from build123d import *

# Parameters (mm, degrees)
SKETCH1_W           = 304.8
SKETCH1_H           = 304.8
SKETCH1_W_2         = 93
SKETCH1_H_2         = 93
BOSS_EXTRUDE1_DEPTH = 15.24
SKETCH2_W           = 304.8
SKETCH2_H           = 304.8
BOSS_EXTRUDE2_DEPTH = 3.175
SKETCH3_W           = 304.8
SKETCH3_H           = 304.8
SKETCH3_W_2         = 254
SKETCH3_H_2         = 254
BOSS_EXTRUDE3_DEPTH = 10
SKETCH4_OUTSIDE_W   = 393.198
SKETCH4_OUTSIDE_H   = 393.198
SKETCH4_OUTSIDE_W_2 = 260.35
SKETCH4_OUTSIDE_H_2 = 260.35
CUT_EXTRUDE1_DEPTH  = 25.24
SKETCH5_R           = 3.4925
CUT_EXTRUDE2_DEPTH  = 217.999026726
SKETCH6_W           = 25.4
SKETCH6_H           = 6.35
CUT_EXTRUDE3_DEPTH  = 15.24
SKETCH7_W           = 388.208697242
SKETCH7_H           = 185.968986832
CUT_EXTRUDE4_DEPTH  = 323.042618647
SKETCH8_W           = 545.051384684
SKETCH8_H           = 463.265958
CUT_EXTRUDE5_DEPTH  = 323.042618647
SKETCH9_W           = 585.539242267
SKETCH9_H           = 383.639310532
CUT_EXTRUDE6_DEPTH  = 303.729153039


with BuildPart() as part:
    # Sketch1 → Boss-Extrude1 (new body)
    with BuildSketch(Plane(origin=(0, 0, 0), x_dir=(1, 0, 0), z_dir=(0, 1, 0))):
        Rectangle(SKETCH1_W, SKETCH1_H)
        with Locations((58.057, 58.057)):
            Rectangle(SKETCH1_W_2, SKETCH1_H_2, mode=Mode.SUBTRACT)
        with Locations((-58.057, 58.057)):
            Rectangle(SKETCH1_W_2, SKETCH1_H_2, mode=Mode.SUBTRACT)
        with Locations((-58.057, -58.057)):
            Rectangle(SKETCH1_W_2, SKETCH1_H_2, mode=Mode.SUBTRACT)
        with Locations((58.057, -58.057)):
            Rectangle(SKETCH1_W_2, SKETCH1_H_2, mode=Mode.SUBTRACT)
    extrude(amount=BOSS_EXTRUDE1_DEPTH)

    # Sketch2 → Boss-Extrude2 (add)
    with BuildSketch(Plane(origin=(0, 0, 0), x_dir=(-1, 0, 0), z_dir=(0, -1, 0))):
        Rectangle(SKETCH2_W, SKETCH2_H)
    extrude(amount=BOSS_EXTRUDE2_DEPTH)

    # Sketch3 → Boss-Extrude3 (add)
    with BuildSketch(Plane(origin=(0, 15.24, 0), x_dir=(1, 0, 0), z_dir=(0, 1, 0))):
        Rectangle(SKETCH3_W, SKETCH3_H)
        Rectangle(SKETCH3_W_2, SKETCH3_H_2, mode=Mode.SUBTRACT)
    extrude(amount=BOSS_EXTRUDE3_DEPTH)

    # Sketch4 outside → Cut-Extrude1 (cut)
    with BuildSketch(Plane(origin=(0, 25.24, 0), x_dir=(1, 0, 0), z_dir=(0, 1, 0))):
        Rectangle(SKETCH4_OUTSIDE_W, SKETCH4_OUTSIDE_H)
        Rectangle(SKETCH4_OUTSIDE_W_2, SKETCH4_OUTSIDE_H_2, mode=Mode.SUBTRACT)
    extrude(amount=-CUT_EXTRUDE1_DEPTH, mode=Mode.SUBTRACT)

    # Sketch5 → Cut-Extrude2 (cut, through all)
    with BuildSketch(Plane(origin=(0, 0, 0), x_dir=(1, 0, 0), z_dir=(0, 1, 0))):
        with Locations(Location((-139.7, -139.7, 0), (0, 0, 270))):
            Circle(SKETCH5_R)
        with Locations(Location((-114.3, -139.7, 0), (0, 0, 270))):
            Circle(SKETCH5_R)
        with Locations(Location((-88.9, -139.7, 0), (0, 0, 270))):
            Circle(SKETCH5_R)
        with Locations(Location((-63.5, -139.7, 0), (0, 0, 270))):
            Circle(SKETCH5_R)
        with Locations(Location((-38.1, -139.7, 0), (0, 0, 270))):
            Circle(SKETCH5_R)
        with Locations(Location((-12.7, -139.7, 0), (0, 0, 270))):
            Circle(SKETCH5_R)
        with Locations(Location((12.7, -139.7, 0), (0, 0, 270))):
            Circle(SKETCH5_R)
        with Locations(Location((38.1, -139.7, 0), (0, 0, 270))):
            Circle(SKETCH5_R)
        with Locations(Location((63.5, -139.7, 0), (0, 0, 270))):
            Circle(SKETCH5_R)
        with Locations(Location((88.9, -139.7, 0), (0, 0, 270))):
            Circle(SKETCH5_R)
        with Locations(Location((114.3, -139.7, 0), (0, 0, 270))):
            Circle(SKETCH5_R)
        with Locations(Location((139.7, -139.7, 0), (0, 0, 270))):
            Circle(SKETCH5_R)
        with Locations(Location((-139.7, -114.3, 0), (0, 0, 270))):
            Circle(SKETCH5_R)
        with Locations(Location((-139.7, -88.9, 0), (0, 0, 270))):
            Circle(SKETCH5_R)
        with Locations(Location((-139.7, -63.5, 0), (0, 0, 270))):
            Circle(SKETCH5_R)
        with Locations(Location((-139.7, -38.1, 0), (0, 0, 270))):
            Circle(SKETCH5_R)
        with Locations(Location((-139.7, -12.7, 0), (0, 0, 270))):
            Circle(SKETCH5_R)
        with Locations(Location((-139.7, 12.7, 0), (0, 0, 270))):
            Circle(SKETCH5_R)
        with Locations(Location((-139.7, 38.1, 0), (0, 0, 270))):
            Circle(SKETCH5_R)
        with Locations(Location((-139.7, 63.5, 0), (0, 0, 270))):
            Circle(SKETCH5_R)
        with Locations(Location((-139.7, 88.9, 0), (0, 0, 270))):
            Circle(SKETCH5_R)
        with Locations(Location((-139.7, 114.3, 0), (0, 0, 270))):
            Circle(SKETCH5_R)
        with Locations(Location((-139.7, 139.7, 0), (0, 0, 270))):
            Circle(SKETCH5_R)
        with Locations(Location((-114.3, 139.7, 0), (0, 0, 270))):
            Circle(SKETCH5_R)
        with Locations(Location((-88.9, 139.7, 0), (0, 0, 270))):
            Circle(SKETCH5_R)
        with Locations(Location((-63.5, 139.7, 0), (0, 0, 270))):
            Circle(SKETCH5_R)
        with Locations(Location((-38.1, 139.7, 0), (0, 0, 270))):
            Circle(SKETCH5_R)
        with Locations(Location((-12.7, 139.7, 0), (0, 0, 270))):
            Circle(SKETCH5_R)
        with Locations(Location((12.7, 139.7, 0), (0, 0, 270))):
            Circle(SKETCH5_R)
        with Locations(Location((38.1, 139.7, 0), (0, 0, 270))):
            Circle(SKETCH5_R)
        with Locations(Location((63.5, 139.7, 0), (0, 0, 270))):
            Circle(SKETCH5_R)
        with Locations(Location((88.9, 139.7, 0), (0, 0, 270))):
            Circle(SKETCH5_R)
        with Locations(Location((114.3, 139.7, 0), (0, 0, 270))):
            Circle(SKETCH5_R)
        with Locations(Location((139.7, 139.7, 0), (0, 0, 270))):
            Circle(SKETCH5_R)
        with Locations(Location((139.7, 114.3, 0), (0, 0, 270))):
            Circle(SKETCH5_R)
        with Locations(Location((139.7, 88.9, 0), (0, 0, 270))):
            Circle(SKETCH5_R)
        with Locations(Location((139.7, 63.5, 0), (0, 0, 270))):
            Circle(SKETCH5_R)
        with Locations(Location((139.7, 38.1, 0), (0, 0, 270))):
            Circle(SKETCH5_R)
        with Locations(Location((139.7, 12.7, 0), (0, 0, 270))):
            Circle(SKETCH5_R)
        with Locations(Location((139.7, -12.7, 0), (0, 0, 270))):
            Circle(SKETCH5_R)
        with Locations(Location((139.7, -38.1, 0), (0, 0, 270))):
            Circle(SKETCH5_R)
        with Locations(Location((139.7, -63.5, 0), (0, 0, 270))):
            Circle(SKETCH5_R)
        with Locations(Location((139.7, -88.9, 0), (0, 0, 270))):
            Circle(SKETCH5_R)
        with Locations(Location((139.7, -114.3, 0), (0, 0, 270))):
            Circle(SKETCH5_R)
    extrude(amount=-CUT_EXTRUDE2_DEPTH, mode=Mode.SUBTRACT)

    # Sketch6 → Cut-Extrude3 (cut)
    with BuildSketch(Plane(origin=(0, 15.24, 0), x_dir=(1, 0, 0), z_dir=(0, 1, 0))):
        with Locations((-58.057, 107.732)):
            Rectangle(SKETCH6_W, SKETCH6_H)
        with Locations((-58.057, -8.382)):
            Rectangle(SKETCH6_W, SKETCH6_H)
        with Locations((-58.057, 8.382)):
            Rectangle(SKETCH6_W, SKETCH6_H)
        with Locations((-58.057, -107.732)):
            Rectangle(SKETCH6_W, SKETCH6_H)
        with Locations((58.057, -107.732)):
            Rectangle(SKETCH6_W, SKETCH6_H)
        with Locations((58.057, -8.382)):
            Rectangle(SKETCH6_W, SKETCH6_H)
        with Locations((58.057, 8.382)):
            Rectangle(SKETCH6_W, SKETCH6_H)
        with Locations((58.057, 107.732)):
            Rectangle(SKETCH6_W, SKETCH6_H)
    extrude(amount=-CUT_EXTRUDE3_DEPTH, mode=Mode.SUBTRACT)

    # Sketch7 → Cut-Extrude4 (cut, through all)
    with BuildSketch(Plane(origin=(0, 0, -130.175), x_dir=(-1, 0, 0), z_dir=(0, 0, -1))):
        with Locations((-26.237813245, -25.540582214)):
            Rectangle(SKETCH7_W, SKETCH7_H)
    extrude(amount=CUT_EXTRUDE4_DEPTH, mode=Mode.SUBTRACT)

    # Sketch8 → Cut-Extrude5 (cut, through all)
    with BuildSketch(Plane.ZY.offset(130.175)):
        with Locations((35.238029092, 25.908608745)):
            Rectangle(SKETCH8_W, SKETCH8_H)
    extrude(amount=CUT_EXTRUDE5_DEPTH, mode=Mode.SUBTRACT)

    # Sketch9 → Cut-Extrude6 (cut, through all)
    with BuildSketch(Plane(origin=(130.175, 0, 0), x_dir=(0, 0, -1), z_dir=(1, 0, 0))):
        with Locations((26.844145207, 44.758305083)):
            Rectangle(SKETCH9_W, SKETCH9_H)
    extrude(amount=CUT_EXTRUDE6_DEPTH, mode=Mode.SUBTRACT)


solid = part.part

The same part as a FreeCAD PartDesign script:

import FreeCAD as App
import Part
import Sketcher

V = App.Vector
Q = App.Units.Quantity


def add_polygon(sketch, points):
    """Adds a closed chain of lines whose ends are joined by coincident constraints."""
    first, n = sketch.GeometryCount, len(points)
    for a, b in zip(points, points[1:] + points[:1]):
        sketch.addGeometry(Part.LineSegment(App.Vector(*a, 0), App.Vector(*b, 0)), False)
    for i in range(n):
        sketch.addConstraint(Sketcher.Constraint("Coincident", first + i, 2, first + (i + 1) % n, 1))

doc = App.newDocument("Part")
body = doc.addObject("PartDesign::Body", "Body")

# Sketch on XZ plane
sketch1 = body.newObject("Sketcher::SketchObject", "Sketch")
sketch1.AttachmentSupport = (doc.getObject("XZ_Plane"), [""])
sketch1.MapMode = "FlatFace"
add_polygon(sketch1, [(-152, -152), (-152, 152), (152, 152), (152, -152)])  # lines 0-3
add_polygon(sketch1, [(-12, 105), (-105, 105), (-105, 12), (-12, 12)])  # lines 4-7
add_polygon(sketch1, [(105, 105), (12, 105), (12, 12), (105, 12)])  # lines 8-11
add_polygon(sketch1, [(-12, -12), (-105, -12), (-105, -105), (-12, -105)])  # lines 12-15
add_polygon(sketch1, [(105, -12), (12, -12), (12, -105), (105, -105)])  # lines 16-19
sketch1.addConstraint(Sketcher.Constraint("Vertical", 0))
sketch1.addConstraint(Sketcher.Constraint("Horizontal", 1))
sketch1.addConstraint(Sketcher.Constraint("Vertical", 2))
sketch1.addConstraint(Sketcher.Constraint("Horizontal", 3))
sketch1.addConstraint(Sketcher.Constraint("Horizontal", 4))
sketch1.addConstraint(Sketcher.Constraint("Vertical", 5))
sketch1.addConstraint(Sketcher.Constraint("Horizontal", 6))
sketch1.addConstraint(Sketcher.Constraint("Vertical", 7))
sketch1.addConstraint(Sketcher.Constraint("Horizontal", 8))
sketch1.addConstraint(Sketcher.Constraint("Vertical", 9))
sketch1.addConstraint(Sketcher.Constraint("Horizontal", 10))
sketch1.addConstraint(Sketcher.Constraint("Vertical", 11))
sketch1.addConstraint(Sketcher.Constraint("Horizontal", 12))
sketch1.addConstraint(Sketcher.Constraint("Vertical", 13))
sketch1.addConstraint(Sketcher.Constraint("Horizontal", 14))
sketch1.addConstraint(Sketcher.Constraint("Vertical", 15))
sketch1.addConstraint(Sketcher.Constraint("Horizontal", 16))
sketch1.addConstraint(Sketcher.Constraint("Vertical", 17))
sketch1.addConstraint(Sketcher.Constraint("Horizontal", 18))
sketch1.addConstraint(Sketcher.Constraint("Vertical", 19))
sketch1.addConstraint(Sketcher.Constraint("Symmetric", 0, 2, 2, 2, -1, 1))
sketch1.addConstraint(Sketcher.Constraint("Symmetric", 10, 2, 12, 2, -1, 1))
sketch1.addConstraint(Sketcher.Constraint("Symmetric", 8, 2, 14, 2, -1, 1))
sketch1.addConstraint(Sketcher.Constraint("Symmetric", 6, 2, 16, 2, -1, 1))
sketch1.addConstraint(Sketcher.Constraint("Symmetric", 4, 2, 18, 2, -1, 1))
sketch1.addConstraint(Sketcher.Constraint("Symmetric", 7, 2, 8, 2, -2))
sketch1.addConstraint(Sketcher.Constraint("Symmetric", 5, 2, 10, 2, -2))
sketch1.addConstraint(Sketcher.Constraint("Equal", 3, 0))
sketch1.addConstraint(Sketcher.Constraint("Equal", 18, 5))
sketch1.addConstraint(Sketcher.Constraint("DistanceX", 1, 1, 1, 2, Q("12 in")))
sketch1.addConstraint(Sketcher.Constraint("DistanceX", 7, 2, 8, 2, Q("0.91 in")))
sketch1.addConstraint(Sketcher.Constraint("DistanceY", 12, 2, 5, 2, Q("0.91 in")))
sketch1.addConstraint(Sketcher.Constraint("DistanceX", 4, 2, 4, 1, 93.0))
pad1 = body.newObject("PartDesign::Pad", "Pad")
pad1.Profile = sketch1
pad1.Length = Q("0.6 in")
pad1.Reversed = True

# Sketch on XZ plane
sketch2 = body.newObject("Sketcher::SketchObject", "Sketch001")
sketch2.AttachmentSupport = (doc.getObject("XZ_Plane"), [""])
sketch2.MapMode = "FlatFace"
add_polygon(sketch2, [(152, -152), (152, 152), (-152, 152), (-152, -152)])  # lines 0-3
sketch2.addConstraint(Sketcher.Constraint("Vertical", 0))
sketch2.addConstraint(Sketcher.Constraint("Horizontal", 1))
sketch2.addConstraint(Sketcher.Constraint("Vertical", 2))
sketch2.addConstraint(Sketcher.Constraint("Horizontal", 3))
sketch2.addConstraint(Sketcher.Constraint("Symmetric", 0, 2, 2, 2, -1, 1))
sketch2.addConstraint(Sketcher.Constraint("Equal", 3, 0))
sketch2.addConstraint(Sketcher.Constraint("DistanceX", 1, 2, 1, 1, Q("12 in")))
pad2 = body.newObject("PartDesign::Pad", "Pad001")
pad2.Profile = sketch2
pad2.Length = Q("0.125 in")

# Sketch on XZ plane
sketch3 = body.newObject("Sketcher::SketchObject", "Sketch002")
sketch3.AttachmentSupport = (doc.getObject("XZ_Plane"), [""])
sketch3.MapMode = "FlatFace"
sketch3.AttachmentOffset = App.Placement(V(0, 0, -0.6 * 25.4), App.Rotation())
add_polygon(sketch3, [(-152, -152), (-152, 152), (152, 152), (152, -152)])  # lines 0-3
add_polygon(sketch3, [(127, 127), (-127, 127), (-127, -127), (127, -127)])  # lines 4-7
sketch3.addConstraint(Sketcher.Constraint("Vertical", 0))
sketch3.addConstraint(Sketcher.Constraint("Horizontal", 1))
sketch3.addConstraint(Sketcher.Constraint("Vertical", 2))
sketch3.addConstraint(Sketcher.Constraint("Horizontal", 3))
sketch3.addConstraint(Sketcher.Constraint("Horizontal", 4))
sketch3.addConstraint(Sketcher.Constraint("Vertical", 5))
sketch3.addConstraint(Sketcher.Constraint("Horizontal", 6))
sketch3.addConstraint(Sketcher.Constraint("Vertical", 7))
sketch3.addConstraint(Sketcher.Constraint("Symmetric", 0, 2, 2, 2, -1, 1))
sketch3.addConstraint(Sketcher.Constraint("Symmetric", 4, 2, 6, 2, -1, 1))
sketch3.addConstraint(Sketcher.Constraint("Equal", 3, 0))
sketch3.addConstraint(Sketcher.Constraint("Equal", 6, 5))
sketch3.addConstraint(Sketcher.Constraint("DistanceX", 1, 1, 1, 2, Q("12 in")))
sketch3.addConstraint(Sketcher.Constraint("DistanceX", 4, 2, 4, 1, Q("10 in")))
pad3 = body.newObject("PartDesign::Pad", "Pad002")
pad3.Profile = sketch3
pad3.Length = 10
pad3.Reversed = True

# Sketch on XZ plane
sketch4 = body.newObject("Sketcher::SketchObject", "Sketch003")
sketch4.AttachmentSupport = (doc.getObject("XZ_Plane"), [""])
sketch4.MapMode = "FlatFace"
sketch4.AttachmentOffset = App.Placement(V(0, 0, -25.24), App.Rotation())
add_polygon(sketch4, [(-197, -197), (-197, 197), (197, 197), (197, -197)])  # lines 0-3
add_polygon(sketch4, [(130, 130), (-130, 130), (-130, -130), (130, -130)])  # lines 4-7
sketch4.addConstraint(Sketcher.Constraint("Vertical", 0))
sketch4.addConstraint(Sketcher.Constraint("Horizontal", 1))
sketch4.addConstraint(Sketcher.Constraint("Vertical", 2))
sketch4.addConstraint(Sketcher.Constraint("Horizontal", 3))
sketch4.addConstraint(Sketcher.Constraint("Horizontal", 4))
sketch4.addConstraint(Sketcher.Constraint("Vertical", 5))
sketch4.addConstraint(Sketcher.Constraint("Horizontal", 6))
sketch4.addConstraint(Sketcher.Constraint("Vertical", 7))
sketch4.addConstraint(Sketcher.Constraint("Symmetric", 0, 2, 2, 2, -1, 1))
sketch4.addConstraint(Sketcher.Constraint("Symmetric", 4, 2, 6, 2, -1, 1))
sketch4.addConstraint(Sketcher.Constraint("Equal", 3, 0))
sketch4.addConstraint(Sketcher.Constraint("Equal", 6, 5))
sketch4.addConstraint(Sketcher.Constraint("DistanceX", 4, 2, 4, 1, Q("10.25 in")))
sketch4.addConstraint(Sketcher.Constraint("DistanceX", 1, 1, 1, 2, 393.198))
pocket1 = body.newObject("PartDesign::Pocket", "Pocket")
pocket1.Profile = sketch4
pocket1.Length = 25.24
pocket1.Reversed = True

# Sketch on XZ plane
sketch5 = body.newObject("Sketcher::SketchObject", "Sketch004")
sketch5.AttachmentSupport = (doc.getObject("XZ_Plane"), [""])
sketch5.MapMode = "FlatFace"
sketch5.addGeometry(Part.Circle(V(-139.7, 139.7, 0), V(0, 0, 1), 3.5), False)
sketch5.addGeometry(Part.Circle(V(-114.3, 139.7, 0), V(0, 0, 1), 3.5), False)
sketch5.addGeometry(Part.Circle(V(-88.9, 139.7, 0), V(0, 0, 1), 3.5), False)
sketch5.addGeometry(Part.Circle(V(-63.5, 139.7, 0), V(0, 0, 1), 3.5), False)
sketch5.addGeometry(Part.Circle(V(-38.1, 139.7, 0), V(0, 0, 1), 3.5), False)
sketch5.addGeometry(Part.Circle(V(-12.7, 139.7, 0), V(0, 0, 1), 3.5), False)
sketch5.addGeometry(Part.Circle(V(12.7, 139.7, 0), V(0, 0, 1), 3.5), False)
sketch5.addGeometry(Part.Circle(V(38.1, 139.7, 0), V(0, 0, 1), 3.5), False)
sketch5.addGeometry(Part.Circle(V(63.5, 139.7, 0), V(0, 0, 1), 3.5), False)
sketch5.addGeometry(Part.Circle(V(88.9, 139.7, 0), V(0, 0, 1), 3.5), False)
sketch5.addGeometry(Part.Circle(V(114.3, 139.7, 0), V(0, 0, 1), 3.5), False)
sketch5.addGeometry(Part.Circle(V(139.7, 139.7, 0), V(0, 0, 1), 3.5), False)
sketch5.addGeometry(Part.Circle(V(-139.7, 114.3, 0), V(0, 0, 1), 3.5), False)
sketch5.addGeometry(Part.Circle(V(-139.7, 88.9, 0), V(0, 0, 1), 3.5), False)
sketch5.addGeometry(Part.Circle(V(-139.7, 63.5, 0), V(0, 0, 1), 3.5), False)
sketch5.addGeometry(Part.Circle(V(-139.7, 38.1, 0), V(0, 0, 1), 3.5), False)
sketch5.addGeometry(Part.Circle(V(-139.7, 12.7, 0), V(0, 0, 1), 3.5), False)
sketch5.addGeometry(Part.Circle(V(-139.7, -12.7, 0), V(0, 0, 1), 3.5), False)
sketch5.addGeometry(Part.Circle(V(-139.7, -38.1, 0), V(0, 0, 1), 3.5), False)
sketch5.addGeometry(Part.Circle(V(-139.7, -63.5, 0), V(0, 0, 1), 3.5), False)
sketch5.addGeometry(Part.Circle(V(-139.7, -88.9, 0), V(0, 0, 1), 3.5), False)
sketch5.addGeometry(Part.Circle(V(-139.7, -114.3, 0), V(0, 0, 1), 3.5), False)
sketch5.addGeometry(Part.Circle(V(-139.7, -139.7, 0), V(0, 0, 1), 3.5), False)
sketch5.addGeometry(Part.Circle(V(-114.3, -139.7, 0), V(0, 0, 1), 3.5), False)
sketch5.addGeometry(Part.Circle(V(-88.9, -139.7, 0), V(0, 0, 1), 3.5), False)
sketch5.addGeometry(Part.Circle(V(-63.5, -139.7, 0), V(0, 0, 1), 3.5), False)
sketch5.addGeometry(Part.Circle(V(-38.1, -139.7, 0), V(0, 0, 1), 3.5), False)
sketch5.addGeometry(Part.Circle(V(-12.7, -139.7, 0), V(0, 0, 1), 3.5), False)
sketch5.addGeometry(Part.Circle(V(12.7, -139.7, 0), V(0, 0, 1), 3.5), False)
sketch5.addGeometry(Part.Circle(V(38.1, -139.7, 0), V(0, 0, 1), 3.5), False)
sketch5.addGeometry(Part.Circle(V(63.5, -139.7, 0), V(0, 0, 1), 3.5), False)
sketch5.addGeometry(Part.Circle(V(88.9, -139.7, 0), V(0, 0, 1), 3.5), False)
sketch5.addGeometry(Part.Circle(V(114.3, -139.7, 0), V(0, 0, 1), 3.5), False)
sketch5.addGeometry(Part.Circle(V(139.7, -139.7, 0), V(0, 0, 1), 3.5), False)
sketch5.addGeometry(Part.Circle(V(139.7, -114.3, 0), V(0, 0, 1), 3.5), False)
sketch5.addGeometry(Part.Circle(V(139.7, -88.9, 0), V(0, 0, 1), 3.5), False)
sketch5.addGeometry(Part.Circle(V(139.7, -63.5, 0), V(0, 0, 1), 3.5), False)
sketch5.addGeometry(Part.Circle(V(139.7, -38.1, 0), V(0, 0, 1), 3.5), False)
sketch5.addGeometry(Part.Circle(V(139.7, -12.7, 0), V(0, 0, 1), 3.5), False)
sketch5.addGeometry(Part.Circle(V(139.7, 12.7, 0), V(0, 0, 1), 3.5), False)
sketch5.addGeometry(Part.Circle(V(139.7, 38.1, 0), V(0, 0, 1), 3.5), False)
sketch5.addGeometry(Part.Circle(V(139.7, 63.5, 0), V(0, 0, 1), 3.5), False)
sketch5.addGeometry(Part.Circle(V(139.7, 88.9, 0), V(0, 0, 1), 3.5), False)
sketch5.addGeometry(Part.Circle(V(139.7, 114.3, 0), V(0, 0, 1), 3.5), False)
sketch5.addConstraint(Sketcher.Constraint("Equal", 0, 1))
sketch5.addConstraint(Sketcher.Constraint("Equal", 1, 2))
sketch5.addConstraint(Sketcher.Constraint("Equal", 2, 3))
sketch5.addConstraint(Sketcher.Constraint("Equal", 3, 4))
sketch5.addConstraint(Sketcher.Constraint("Equal", 4, 5))
sketch5.addConstraint(Sketcher.Constraint("Equal", 5, 6))
sketch5.addConstraint(Sketcher.Constraint("Equal", 6, 7))
sketch5.addConstraint(Sketcher.Constraint("Equal", 7, 8))
sketch5.addConstraint(Sketcher.Constraint("Equal", 8, 9))
sketch5.addConstraint(Sketcher.Constraint("Equal", 9, 10))
sketch5.addConstraint(Sketcher.Constraint("Equal", 10, 11))
sketch5.addConstraint(Sketcher.Constraint("Equal", 11, 12))
sketch5.addConstraint(Sketcher.Constraint("Equal", 12, 13))
sketch5.addConstraint(Sketcher.Constraint("Equal", 13, 14))
sketch5.addConstraint(Sketcher.Constraint("Equal", 14, 15))
sketch5.addConstraint(Sketcher.Constraint("Equal", 15, 16))
sketch5.addConstraint(Sketcher.Constraint("Equal", 16, 17))
sketch5.addConstraint(Sketcher.Constraint("Equal", 17, 18))
sketch5.addConstraint(Sketcher.Constraint("Equal", 18, 19))
sketch5.addConstraint(Sketcher.Constraint("Equal", 19, 20))
sketch5.addConstraint(Sketcher.Constraint("Equal", 20, 21))
sketch5.addConstraint(Sketcher.Constraint("Equal", 21, 22))
sketch5.addConstraint(Sketcher.Constraint("Equal", 22, 23))
sketch5.addConstraint(Sketcher.Constraint("Equal", 23, 24))
sketch5.addConstraint(Sketcher.Constraint("Equal", 24, 25))
sketch5.addConstraint(Sketcher.Constraint("Equal", 25, 26))
sketch5.addConstraint(Sketcher.Constraint("Equal", 26, 27))
sketch5.addConstraint(Sketcher.Constraint("Equal", 27, 28))
sketch5.addConstraint(Sketcher.Constraint("Equal", 28, 29))
sketch5.addConstraint(Sketcher.Constraint("Equal", 29, 30))
sketch5.addConstraint(Sketcher.Constraint("Equal", 30, 31))
sketch5.addConstraint(Sketcher.Constraint("Equal", 31, 32))
sketch5.addConstraint(Sketcher.Constraint("Equal", 32, 33))
sketch5.addConstraint(Sketcher.Constraint("Equal", 33, 34))
sketch5.addConstraint(Sketcher.Constraint("Equal", 34, 35))
sketch5.addConstraint(Sketcher.Constraint("Equal", 35, 36))
sketch5.addConstraint(Sketcher.Constraint("Equal", 36, 37))
sketch5.addConstraint(Sketcher.Constraint("Equal", 37, 38))
sketch5.addConstraint(Sketcher.Constraint("Equal", 38, 39))
sketch5.addConstraint(Sketcher.Constraint("Equal", 39, 40))
sketch5.addConstraint(Sketcher.Constraint("Equal", 40, 41))
sketch5.addConstraint(Sketcher.Constraint("Equal", 41, 42))
sketch5.addConstraint(Sketcher.Constraint("Equal", 42, 43))
sketch5.addConstraint(Sketcher.Constraint("Symmetric", 11, 3, 22, 3, -1, 1))
sketch5.addConstraint(Sketcher.Constraint("Symmetric", 10, 3, 23, 3, -1, 1))
sketch5.addConstraint(Sketcher.Constraint("Symmetric", 9, 3, 24, 3, -1, 1))
sketch5.addConstraint(Sketcher.Constraint("Symmetric", 8, 3, 25, 3, -1, 1))
sketch5.addConstraint(Sketcher.Constraint("Symmetric", 7, 3, 26, 3, -1, 1))
sketch5.addConstraint(Sketcher.Constraint("Symmetric", 6, 3, 27, 3, -1, 1))
sketch5.addConstraint(Sketcher.Constraint("Symmetric", 5, 3, 28, 3, -1, 1))
sketch5.addConstraint(Sketcher.Constraint("Symmetric", 4, 3, 29, 3, -1, 1))
sketch5.addConstraint(Sketcher.Constraint("Symmetric", 3, 3, 30, 3, -1, 1))
sketch5.addConstraint(Sketcher.Constraint("Symmetric", 2, 3, 31, 3, -1, 1))
sketch5.addConstraint(Sketcher.Constraint("Symmetric", 1, 3, 32, 3, -1, 1))
sketch5.addConstraint(Sketcher.Constraint("Symmetric", 0, 3, 33, 3, -1, 1))
sketch5.addConstraint(Sketcher.Constraint("Symmetric", 12, 3, 34, 3, -1, 1))
sketch5.addConstraint(Sketcher.Constraint("Symmetric", 13, 3, 35, 3, -1, 1))
sketch5.addConstraint(Sketcher.Constraint("Symmetric", 14, 3, 36, 3, -1, 1))
sketch5.addConstraint(Sketcher.Constraint("Symmetric", 15, 3, 37, 3, -1, 1))
sketch5.addConstraint(Sketcher.Constraint("Symmetric", 16, 3, 38, 3, -1, 1))
sketch5.addConstraint(Sketcher.Constraint("Symmetric", 17, 3, 39, 3, -1, 1))
sketch5.addConstraint(Sketcher.Constraint("Symmetric", 18, 3, 40, 3, -1, 1))
sketch5.addConstraint(Sketcher.Constraint("Symmetric", 19, 3, 41, 3, -1, 1))
sketch5.addConstraint(Sketcher.Constraint("Symmetric", 20, 3, 42, 3, -1, 1))
sketch5.addConstraint(Sketcher.Constraint("Symmetric", 21, 3, 43, 3, -1, 1))
sketch5.addConstraint(Sketcher.Constraint("Symmetric", 5, 3, 6, 3, -2))
sketch5.addConstraint(Sketcher.Constraint("Symmetric", 4, 3, 7, 3, -2))
sketch5.addConstraint(Sketcher.Constraint("Symmetric", 3, 3, 8, 3, -2))
sketch5.addConstraint(Sketcher.Constraint("Symmetric", 2, 3, 9, 3, -2))
sketch5.addConstraint(Sketcher.Constraint("Symmetric", 1, 3, 10, 3, -2))
sketch5.addConstraint(Sketcher.Constraint("Symmetric", 0, 3, 11, 3, -2))
sketch5.addConstraint(Sketcher.Constraint("Symmetric", 21, 3, 34, 3, -2))
sketch5.addConstraint(Sketcher.Constraint("Symmetric", 20, 3, 35, 3, -2))
sketch5.addConstraint(Sketcher.Constraint("Symmetric", 19, 3, 36, 3, -2))
sketch5.addConstraint(Sketcher.Constraint("Symmetric", 18, 3, 37, 3, -2))
sketch5.addConstraint(Sketcher.Constraint("Symmetric", 17, 3, 38, 3, -2))
sketch5.addConstraint(Sketcher.Constraint("Horizontal", 0, 3, 1, 3))
sketch5.addConstraint(Sketcher.Constraint("Horizontal", 1, 3, 2, 3))
sketch5.addConstraint(Sketcher.Constraint("Horizontal", 2, 3, 3, 3))
sketch5.addConstraint(Sketcher.Constraint("Horizontal", 3, 3, 4, 3))
sketch5.addConstraint(Sketcher.Constraint("Horizontal", 4, 3, 5, 3))
sketch5.addConstraint(Sketcher.Constraint("Vertical", 0, 3, 12, 3))
sketch5.addConstraint(Sketcher.Constraint("Vertical", 12, 3, 13, 3))
sketch5.addConstraint(Sketcher.Constraint("Vertical", 13, 3, 14, 3))
sketch5.addConstraint(Sketcher.Constraint("Vertical", 14, 3, 15, 3))
sketch5.addConstraint(Sketcher.Constraint("Vertical", 15, 3, 16, 3))
sketch5.addConstraint(Sketcher.Constraint("Diameter", 0, Q("0.275 in")))
sketch5.addConstraint(Sketcher.Constraint("DistanceX", 0, 3, 1, 3, Q("1 in")))
sketch5.addConstraint(Sketcher.Constraint("DistanceX", 1, 3, 2, 3, Q("1 in")))
sketch5.addConstraint(Sketcher.Constraint("DistanceX", 2, 3, 3, 3, Q("1 in")))
sketch5.addConstraint(Sketcher.Constraint("DistanceX", 3, 3, 4, 3, Q("1 in")))
sketch5.addConstraint(Sketcher.Constraint("DistanceX", 4, 3, 5, 3, Q("1 in")))
sketch5.addConstraint(Sketcher.Constraint("DistanceX", 5, 3, 6, 3, Q("1 in")))
sketch5.addConstraint(Sketcher.Constraint("DistanceY", 12, 3, 0, 3, Q("1 in")))
sketch5.addConstraint(Sketcher.Constraint("DistanceY", 13, 3, 12, 3, Q("1 in")))
sketch5.addConstraint(Sketcher.Constraint("DistanceY", 14, 3, 13, 3, Q("1 in")))
sketch5.addConstraint(Sketcher.Constraint("DistanceY", 15, 3, 14, 3, Q("1 in")))
sketch5.addConstraint(Sketcher.Constraint("DistanceY", 16, 3, 15, 3, Q("1 in")))
sketch5.addConstraint(Sketcher.Constraint("DistanceY", 17, 3, 16, 3, Q("1 in")))
pocket2 = body.newObject("PartDesign::Pocket", "Pocket001")
pocket2.Profile = sketch5
pocket2.Type = "ThroughAll"
pocket2.Reversed = True

# Sketch on XZ plane
sketch6 = body.newObject("Sketcher::SketchObject", "Sketch005")
sketch6.AttachmentSupport = (doc.getObject("XZ_Plane"), [""])
sketch6.MapMode = "FlatFace"
sketch6.AttachmentOffset = App.Placement(V(0, 0, -0.6 * 25.4), App.Rotation())
add_polygon(sketch6, [(-71, -111), (-71, -105), (-45, -105), (-45, -111)])  # lines 0-3
add_polygon(sketch6, [(-71, 5), (-71, 12), (-45, 12), (-45, 5)])  # lines 4-7
add_polygon(sketch6, [(-71, -12), (-71, -5), (-45, -5), (-45, -12)])  # lines 8-11
add_polygon(sketch6, [(-71, 105), (-71, 111), (-45, 111), (-45, 105)])  # lines 12-15
add_polygon(sketch6, [(45, 105), (45, 111), (71, 111), (71, 105)])  # lines 16-19
add_polygon(sketch6, [(45, 5), (45, 12), (71, 12), (71, 5)])  # lines 20-23
add_polygon(sketch6, [(45, -12), (45, -5), (71, -5), (71, -12)])  # lines 24-27
add_polygon(sketch6, [(45, -111), (45, -105), (71, -105), (71, -111)])  # lines 28-31
sketch6.addConstraint(Sketcher.Constraint("Vertical", 0))
sketch6.addConstraint(Sketcher.Constraint("Horizontal", 1))
sketch6.addConstraint(Sketcher.Constraint("Vertical", 2))
sketch6.addConstraint(Sketcher.Constraint("Horizontal", 3))
sketch6.addConstraint(Sketcher.Constraint("Vertical", 4))
sketch6.addConstraint(Sketcher.Constraint("Horizontal", 5))
sketch6.addConstraint(Sketcher.Constraint("Vertical", 6))
sketch6.addConstraint(Sketcher.Constraint("Horizontal", 7))
sketch6.addConstraint(Sketcher.Constraint("Vertical", 8))
sketch6.addConstraint(Sketcher.Constraint("Horizontal", 9))
sketch6.addConstraint(Sketcher.Constraint("Vertical", 10))
sketch6.addConstraint(Sketcher.Constraint("Horizontal", 11))
sketch6.addConstraint(Sketcher.Constraint("Vertical", 12))
sketch6.addConstraint(Sketcher.Constraint("Horizontal", 13))
sketch6.addConstraint(Sketcher.Constraint("Vertical", 14))
sketch6.addConstraint(Sketcher.Constraint("Horizontal", 15))
sketch6.addConstraint(Sketcher.Constraint("Vertical", 16))
sketch6.addConstraint(Sketcher.Constraint("Horizontal", 17))
sketch6.addConstraint(Sketcher.Constraint("Vertical", 18))
sketch6.addConstraint(Sketcher.Constraint("Horizontal", 19))
sketch6.addConstraint(Sketcher.Constraint("Vertical", 20))
sketch6.addConstraint(Sketcher.Constraint("Horizontal", 21))
sketch6.addConstraint(Sketcher.Constraint("Vertical", 22))
sketch6.addConstraint(Sketcher.Constraint("Horizontal", 23))
sketch6.addConstraint(Sketcher.Constraint("Vertical", 24))
sketch6.addConstraint(Sketcher.Constraint("Horizontal", 25))
sketch6.addConstraint(Sketcher.Constraint("Vertical", 26))
sketch6.addConstraint(Sketcher.Constraint("Horizontal", 27))
sketch6.addConstraint(Sketcher.Constraint("Vertical", 28))
sketch6.addConstraint(Sketcher.Constraint("Horizontal", 29))
sketch6.addConstraint(Sketcher.Constraint("Vertical", 30))
sketch6.addConstraint(Sketcher.Constraint("Horizontal", 31))
sketch6.addConstraint(Sketcher.Constraint("Symmetric", 2, 2, 16, 2, -1, 1))
sketch6.addConstraint(Sketcher.Constraint("Symmetric", 0, 2, 18, 2, -1, 1))
sketch6.addConstraint(Sketcher.Constraint("Symmetric", 10, 2, 20, 2, -1, 1))
sketch6.addConstraint(Sketcher.Constraint("Symmetric", 8, 2, 22, 2, -1, 1))
sketch6.addConstraint(Sketcher.Constraint("Symmetric", 6, 2, 24, 2, -1, 1))
sketch6.addConstraint(Sketcher.Constraint("Symmetric", 4, 2, 26, 2, -1, 1))
sketch6.addConstraint(Sketcher.Constraint("Symmetric", 14, 2, 28, 2, -1, 1))
sketch6.addConstraint(Sketcher.Constraint("Symmetric", 12, 2, 30, 2, -1, 1))
sketch6.addConstraint(Sketcher.Constraint("Symmetric", 13, 2, 16, 2, -2))
sketch6.addConstraint(Sketcher.Constraint("Symmetric", 15, 2, 18, 2, -2))
sketch6.addConstraint(Sketcher.Constraint("Symmetric", 5, 2, 20, 2, -2))
sketch6.addConstraint(Sketcher.Constraint("Symmetric", 7, 2, 22, 2, -2))
sketch6.addConstraint(Sketcher.Constraint("Vertical", 3, 2, 4, 2))
sketch6.addConstraint(Sketcher.Constraint("Vertical", 2, 2, 5, 2))
sketch6.addConstraint(Sketcher.Constraint("Equal", 2, 4))
sketch6.addConstraint(Sketcher.Constraint("DistanceX", 1, 1, 1, 2, Q("1 in")))
sketch6.addConstraint(Sketcher.Constraint("DistanceY", 0, 1, 0, 2, Q("0.25 in")))
sketch6.addConstraint(Sketcher.Constraint("DistanceY", 8, 2, 7, 2, Q("0.41 in")))
sketch6.addConstraint(Sketcher.Constraint("DistanceX", 0, 2, -1, 1, 70.757))
sketch6.addConstraint(Sketcher.Constraint("DistanceY", 0, 2, -1, 1, 104.557))
pocket3 = body.newObject("PartDesign::Pocket", "Pocket002")
pocket3.Profile = sketch6
pocket3.Length = Q("0.6 in")
pocket3.Reversed = True

# Sketch on XY plane
sketch7 = body.newObject("Sketcher::SketchObject", "Sketch006")
sketch7.AttachmentSupport = (doc.getObject("XY_Plane"), [""])
sketch7.MapMode = "FlatFace"
sketch7.AttachmentOffset = App.Placement(V(0, 0, -5.125 * 25.4), App.Rotation())
add_polygon(sketch7, [(220, 67), (220, -119), (-168, -119), (-168, 67)])  # lines 0-3
sketch7.addConstraint(Sketcher.Constraint("Vertical", 0))
sketch7.addConstraint(Sketcher.Constraint("Horizontal", 1))
sketch7.addConstraint(Sketcher.Constraint("Vertical", 2))
sketch7.addConstraint(Sketcher.Constraint("Horizontal", 3))
sketch7.addConstraint(Sketcher.Constraint("DistanceX", 1, 2, 1, 1, 388.208697))
sketch7.addConstraint(Sketcher.Constraint("DistanceY", 0, 2, 0, 1, 185.968987))
sketch7.addConstraint(Sketcher.Constraint("DistanceX", -1, 1, 0, 2, 220.342162))
sketch7.addConstraint(Sketcher.Constraint("DistanceY", -1, 1, 2, 2, 67.443911))
pocket4 = body.newObject("PartDesign::Pocket", "Pocket003")
pocket4.Profile = sketch7
pocket4.Type = "ThroughAll"

# Sketch on YZ plane
sketch8 = body.newObject("Sketcher::SketchObject", "Sketch007")
sketch8.AttachmentSupport = (doc.getObject("YZ_Plane"), [""])
sketch8.MapMode = "FlatFace"
sketch8.AttachmentOffset = App.Placement(V(0, 0, -5.125 * 25.4), App.Rotation())
add_polygon(sketch8, [(258, -237), (-206, -237), (-206, 308), (258, 308)])  # lines 0-3
sketch8.addConstraint(Sketcher.Constraint("Horizontal", 0))
sketch8.addConstraint(Sketcher.Constraint("Vertical", 1))
sketch8.addConstraint(Sketcher.Constraint("Horizontal", 2))
sketch8.addConstraint(Sketcher.Constraint("Vertical", 3))
sketch8.addConstraint(Sketcher.Constraint("DistanceX", 0, 2, 0, 1, 463.265958))
sketch8.addConstraint(Sketcher.Constraint("DistanceY", 1, 1, 1, 2, 545.051385))
sketch8.addConstraint(Sketcher.Constraint("DistanceX", 0, 2, -1, 1, 205.72437))
sketch8.addConstraint(Sketcher.Constraint("DistanceY", -1, 1, 1, 2, 307.763721))
pocket5 = body.newObject("PartDesign::Pocket", "Pocket004")
pocket5.Profile = sketch8
pocket5.Type = "ThroughAll"

# Sketch on YZ plane
sketch9 = body.newObject("Sketcher::SketchObject", "Sketch008")
sketch9.AttachmentSupport = (doc.getObject("YZ_Plane"), [""])
sketch9.MapMode = "FlatFace"
sketch9.AttachmentOffset = App.Placement(V(0, 0, 5.125 * 25.4), App.Rotation())
add_polygon(sketch9, [(237, 266), (-147, 266), (-147, -320), (237, -320)])  # lines 0-3
sketch9.addConstraint(Sketcher.Constraint("Horizontal", 0))
sketch9.addConstraint(Sketcher.Constraint("Vertical", 1))
sketch9.addConstraint(Sketcher.Constraint("Horizontal", 2))
sketch9.addConstraint(Sketcher.Constraint("Vertical", 3))
sketch9.addConstraint(Sketcher.Constraint("DistanceX", 0, 2, 0, 1, 383.639311))
sketch9.addConstraint(Sketcher.Constraint("DistanceY", 1, 2, 1, 1, 585.539242))
sketch9.addConstraint(Sketcher.Constraint("DistanceX", 0, 2, -1, 1, 147.06135))
sketch9.addConstraint(Sketcher.Constraint("DistanceY", -1, 1, 0, 2, 265.925476))
pocket6 = body.newObject("PartDesign::Pocket", "Pocket005")
pocket6.Profile = sketch9
pocket6.Type = "ThroughAll"
pocket6.Reversed = True

doc.recompute()
